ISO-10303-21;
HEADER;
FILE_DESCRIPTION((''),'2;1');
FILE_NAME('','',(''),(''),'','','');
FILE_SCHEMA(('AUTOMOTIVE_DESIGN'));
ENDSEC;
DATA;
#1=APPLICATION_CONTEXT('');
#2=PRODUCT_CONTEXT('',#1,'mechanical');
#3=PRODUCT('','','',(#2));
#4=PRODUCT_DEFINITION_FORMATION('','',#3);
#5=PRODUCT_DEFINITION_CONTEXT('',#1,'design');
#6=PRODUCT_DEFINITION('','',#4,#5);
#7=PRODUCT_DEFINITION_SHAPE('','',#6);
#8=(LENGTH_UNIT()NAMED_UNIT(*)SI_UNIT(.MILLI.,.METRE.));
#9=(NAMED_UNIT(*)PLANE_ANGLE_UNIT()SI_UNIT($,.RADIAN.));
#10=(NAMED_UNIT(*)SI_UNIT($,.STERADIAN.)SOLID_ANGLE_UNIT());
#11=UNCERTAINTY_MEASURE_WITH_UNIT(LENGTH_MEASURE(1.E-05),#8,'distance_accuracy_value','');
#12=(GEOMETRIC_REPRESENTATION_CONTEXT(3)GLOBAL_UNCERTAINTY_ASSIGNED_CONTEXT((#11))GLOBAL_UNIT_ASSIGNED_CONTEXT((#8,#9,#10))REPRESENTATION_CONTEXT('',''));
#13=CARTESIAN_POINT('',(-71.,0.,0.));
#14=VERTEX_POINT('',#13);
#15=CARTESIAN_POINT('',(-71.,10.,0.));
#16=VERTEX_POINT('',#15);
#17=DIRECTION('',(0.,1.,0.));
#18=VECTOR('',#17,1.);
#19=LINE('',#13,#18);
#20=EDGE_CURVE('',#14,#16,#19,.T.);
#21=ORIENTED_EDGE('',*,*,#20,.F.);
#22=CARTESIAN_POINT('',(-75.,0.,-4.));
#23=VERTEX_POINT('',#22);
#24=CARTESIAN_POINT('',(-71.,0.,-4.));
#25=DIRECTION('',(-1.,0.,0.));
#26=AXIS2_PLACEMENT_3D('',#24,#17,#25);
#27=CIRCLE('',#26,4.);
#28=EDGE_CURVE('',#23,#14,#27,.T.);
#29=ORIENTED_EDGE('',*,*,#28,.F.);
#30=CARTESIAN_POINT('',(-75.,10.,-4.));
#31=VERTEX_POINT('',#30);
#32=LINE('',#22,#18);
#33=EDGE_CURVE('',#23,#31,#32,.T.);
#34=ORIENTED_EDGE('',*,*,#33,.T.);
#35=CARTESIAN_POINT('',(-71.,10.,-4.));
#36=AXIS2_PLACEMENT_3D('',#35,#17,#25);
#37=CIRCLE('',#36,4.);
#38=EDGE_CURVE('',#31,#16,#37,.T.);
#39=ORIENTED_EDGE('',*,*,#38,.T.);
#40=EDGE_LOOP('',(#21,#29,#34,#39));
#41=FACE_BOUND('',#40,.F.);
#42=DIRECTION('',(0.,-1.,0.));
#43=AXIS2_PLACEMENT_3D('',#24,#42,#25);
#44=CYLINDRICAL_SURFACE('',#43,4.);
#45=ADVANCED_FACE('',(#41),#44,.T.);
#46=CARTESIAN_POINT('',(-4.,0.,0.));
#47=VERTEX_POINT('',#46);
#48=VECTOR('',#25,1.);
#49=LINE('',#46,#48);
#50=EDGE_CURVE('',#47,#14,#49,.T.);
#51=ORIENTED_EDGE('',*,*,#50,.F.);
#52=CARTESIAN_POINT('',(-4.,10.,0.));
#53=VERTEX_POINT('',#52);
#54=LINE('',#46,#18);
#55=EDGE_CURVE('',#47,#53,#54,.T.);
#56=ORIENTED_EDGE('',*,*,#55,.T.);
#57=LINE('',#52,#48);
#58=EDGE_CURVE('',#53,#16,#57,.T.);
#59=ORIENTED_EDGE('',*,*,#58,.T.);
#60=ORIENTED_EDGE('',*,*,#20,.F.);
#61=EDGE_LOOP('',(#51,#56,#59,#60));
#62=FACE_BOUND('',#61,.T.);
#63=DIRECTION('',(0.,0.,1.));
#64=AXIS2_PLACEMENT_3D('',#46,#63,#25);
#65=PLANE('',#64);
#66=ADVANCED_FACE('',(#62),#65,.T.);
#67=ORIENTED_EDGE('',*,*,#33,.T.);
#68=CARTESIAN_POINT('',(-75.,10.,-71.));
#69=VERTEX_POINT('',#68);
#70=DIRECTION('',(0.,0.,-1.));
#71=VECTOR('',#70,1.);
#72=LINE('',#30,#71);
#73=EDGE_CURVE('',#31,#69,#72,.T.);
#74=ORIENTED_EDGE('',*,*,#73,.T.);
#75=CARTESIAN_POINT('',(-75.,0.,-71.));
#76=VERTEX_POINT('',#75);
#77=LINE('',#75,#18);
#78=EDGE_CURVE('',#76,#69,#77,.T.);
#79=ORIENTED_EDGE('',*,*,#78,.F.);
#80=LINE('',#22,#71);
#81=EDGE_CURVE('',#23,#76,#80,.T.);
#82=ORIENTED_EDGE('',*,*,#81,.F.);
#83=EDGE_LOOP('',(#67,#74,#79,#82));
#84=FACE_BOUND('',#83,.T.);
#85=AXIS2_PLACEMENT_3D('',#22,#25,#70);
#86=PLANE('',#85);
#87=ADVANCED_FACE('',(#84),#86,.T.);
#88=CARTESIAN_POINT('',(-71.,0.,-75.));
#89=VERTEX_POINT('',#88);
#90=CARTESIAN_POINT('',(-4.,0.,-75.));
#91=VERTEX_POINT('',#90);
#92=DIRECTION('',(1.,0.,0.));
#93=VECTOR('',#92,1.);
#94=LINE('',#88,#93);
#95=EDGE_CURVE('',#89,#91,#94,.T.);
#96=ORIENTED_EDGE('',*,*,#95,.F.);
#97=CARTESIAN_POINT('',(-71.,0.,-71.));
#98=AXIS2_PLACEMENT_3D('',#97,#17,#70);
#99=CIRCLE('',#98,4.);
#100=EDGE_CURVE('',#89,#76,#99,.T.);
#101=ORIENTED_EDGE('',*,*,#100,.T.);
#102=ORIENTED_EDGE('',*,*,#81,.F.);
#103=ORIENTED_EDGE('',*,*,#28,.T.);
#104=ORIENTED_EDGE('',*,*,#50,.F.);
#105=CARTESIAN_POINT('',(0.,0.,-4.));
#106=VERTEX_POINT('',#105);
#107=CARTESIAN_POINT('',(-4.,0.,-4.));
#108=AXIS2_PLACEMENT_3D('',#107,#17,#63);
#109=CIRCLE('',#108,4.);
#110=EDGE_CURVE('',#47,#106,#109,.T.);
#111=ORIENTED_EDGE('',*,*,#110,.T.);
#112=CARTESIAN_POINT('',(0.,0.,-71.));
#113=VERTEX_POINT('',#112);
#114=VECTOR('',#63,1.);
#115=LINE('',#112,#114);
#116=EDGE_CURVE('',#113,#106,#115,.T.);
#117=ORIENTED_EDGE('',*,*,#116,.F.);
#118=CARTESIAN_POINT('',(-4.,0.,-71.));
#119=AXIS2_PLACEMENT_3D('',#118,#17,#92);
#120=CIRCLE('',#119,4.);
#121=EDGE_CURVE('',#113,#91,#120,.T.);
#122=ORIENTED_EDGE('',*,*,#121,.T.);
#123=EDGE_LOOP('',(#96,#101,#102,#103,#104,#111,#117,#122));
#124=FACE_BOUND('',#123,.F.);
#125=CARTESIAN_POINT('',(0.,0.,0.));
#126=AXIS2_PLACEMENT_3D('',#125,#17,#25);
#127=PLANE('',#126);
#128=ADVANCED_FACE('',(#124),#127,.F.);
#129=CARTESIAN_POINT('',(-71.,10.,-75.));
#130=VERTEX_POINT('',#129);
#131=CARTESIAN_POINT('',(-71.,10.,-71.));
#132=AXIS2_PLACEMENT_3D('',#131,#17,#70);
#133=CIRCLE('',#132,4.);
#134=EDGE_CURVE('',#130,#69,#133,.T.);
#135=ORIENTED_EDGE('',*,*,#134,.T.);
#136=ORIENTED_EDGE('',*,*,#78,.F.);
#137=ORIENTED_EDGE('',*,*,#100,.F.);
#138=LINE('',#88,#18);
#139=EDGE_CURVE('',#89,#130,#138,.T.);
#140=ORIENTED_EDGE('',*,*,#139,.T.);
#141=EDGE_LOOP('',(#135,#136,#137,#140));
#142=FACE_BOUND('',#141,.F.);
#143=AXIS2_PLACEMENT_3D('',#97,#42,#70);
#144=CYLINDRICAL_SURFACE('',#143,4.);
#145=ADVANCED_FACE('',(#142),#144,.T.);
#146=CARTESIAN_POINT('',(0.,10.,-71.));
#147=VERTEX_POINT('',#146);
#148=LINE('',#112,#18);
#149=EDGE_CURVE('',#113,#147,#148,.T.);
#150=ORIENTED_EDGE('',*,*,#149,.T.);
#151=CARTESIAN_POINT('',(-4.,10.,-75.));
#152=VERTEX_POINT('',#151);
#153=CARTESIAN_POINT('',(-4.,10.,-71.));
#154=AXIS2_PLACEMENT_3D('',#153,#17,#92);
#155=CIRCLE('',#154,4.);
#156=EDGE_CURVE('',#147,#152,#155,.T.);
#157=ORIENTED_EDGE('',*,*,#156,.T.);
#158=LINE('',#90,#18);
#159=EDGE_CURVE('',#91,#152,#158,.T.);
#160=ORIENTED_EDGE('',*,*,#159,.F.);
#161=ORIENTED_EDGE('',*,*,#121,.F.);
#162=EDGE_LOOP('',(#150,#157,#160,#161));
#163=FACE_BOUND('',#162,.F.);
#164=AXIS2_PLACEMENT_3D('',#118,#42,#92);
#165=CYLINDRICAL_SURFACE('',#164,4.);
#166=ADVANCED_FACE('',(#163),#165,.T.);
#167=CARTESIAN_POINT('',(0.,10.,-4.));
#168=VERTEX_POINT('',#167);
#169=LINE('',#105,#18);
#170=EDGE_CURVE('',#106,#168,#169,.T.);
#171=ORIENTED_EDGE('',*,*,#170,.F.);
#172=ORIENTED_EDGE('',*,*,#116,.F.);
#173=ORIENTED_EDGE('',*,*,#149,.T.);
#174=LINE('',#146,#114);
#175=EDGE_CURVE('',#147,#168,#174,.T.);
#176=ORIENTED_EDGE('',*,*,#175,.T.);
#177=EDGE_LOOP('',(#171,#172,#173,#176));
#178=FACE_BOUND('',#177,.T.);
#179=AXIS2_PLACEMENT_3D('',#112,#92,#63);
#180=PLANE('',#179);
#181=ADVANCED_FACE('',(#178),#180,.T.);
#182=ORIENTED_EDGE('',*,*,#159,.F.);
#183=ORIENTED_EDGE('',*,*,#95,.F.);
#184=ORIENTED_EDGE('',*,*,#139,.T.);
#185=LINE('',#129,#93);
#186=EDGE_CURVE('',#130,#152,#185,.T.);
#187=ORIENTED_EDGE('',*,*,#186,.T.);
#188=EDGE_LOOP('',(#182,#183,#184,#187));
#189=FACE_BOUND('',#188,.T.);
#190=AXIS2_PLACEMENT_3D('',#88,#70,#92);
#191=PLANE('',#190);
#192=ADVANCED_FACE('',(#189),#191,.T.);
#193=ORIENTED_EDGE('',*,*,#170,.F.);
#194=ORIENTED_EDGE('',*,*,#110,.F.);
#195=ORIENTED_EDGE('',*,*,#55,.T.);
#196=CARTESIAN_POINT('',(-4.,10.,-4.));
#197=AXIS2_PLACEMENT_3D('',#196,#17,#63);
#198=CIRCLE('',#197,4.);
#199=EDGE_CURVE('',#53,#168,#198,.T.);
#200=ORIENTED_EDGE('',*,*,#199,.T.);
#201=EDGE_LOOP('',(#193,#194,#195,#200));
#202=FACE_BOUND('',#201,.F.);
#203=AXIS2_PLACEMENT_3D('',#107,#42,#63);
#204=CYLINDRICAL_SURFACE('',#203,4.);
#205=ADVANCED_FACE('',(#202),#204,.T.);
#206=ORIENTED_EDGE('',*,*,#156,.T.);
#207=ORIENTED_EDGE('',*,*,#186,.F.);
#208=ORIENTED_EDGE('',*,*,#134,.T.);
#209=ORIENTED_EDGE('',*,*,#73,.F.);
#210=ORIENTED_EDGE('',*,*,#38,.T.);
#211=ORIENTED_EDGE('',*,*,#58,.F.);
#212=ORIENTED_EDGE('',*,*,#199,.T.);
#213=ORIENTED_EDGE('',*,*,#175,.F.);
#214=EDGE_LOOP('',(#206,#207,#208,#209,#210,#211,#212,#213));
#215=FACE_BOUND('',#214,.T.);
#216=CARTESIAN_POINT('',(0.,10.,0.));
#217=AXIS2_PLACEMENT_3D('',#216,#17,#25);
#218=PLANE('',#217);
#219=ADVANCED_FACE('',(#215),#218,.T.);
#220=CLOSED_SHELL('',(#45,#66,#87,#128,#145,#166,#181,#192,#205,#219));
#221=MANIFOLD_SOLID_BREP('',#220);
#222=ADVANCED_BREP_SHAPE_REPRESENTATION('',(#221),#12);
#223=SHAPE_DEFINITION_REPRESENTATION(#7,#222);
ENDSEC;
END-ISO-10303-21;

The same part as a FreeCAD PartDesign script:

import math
import FreeCAD as App
import Part
import Sketcher
from FreeCAD import Vector
Q = App.Units.Quantity

doc = App.newDocument("Part")
body = doc.addObject("PartDesign::Body", "Body")

sketch1 = body.newObject("Sketcher::SketchObject", "Sketch")
sketch1.AttachmentSupport = (doc.getObject("XZ_Plane"), [""])
sketch1.MapMode = "FlatFace"
sketch1.addGeometry(Part.LineSegment(Vector(-71, 0, 0), Vector(-4, 0, 0)), False)
sketch1.addGeometry(Part.ArcOfCircle(Part.Circle(Vector(-4, -4, 0), Vector(0, 0, 1), 4), math.radians(0), math.radians(90)), False)
sketch1.addGeometry(Part.LineSegment(Vector(0, -4, 0), Vector(0, -71, 0)), False)
sketch1.addGeometry(Part.ArcOfCircle(Part.Circle(Vector(-4, -71, 0), Vector(0, 0, 1), 4), math.radians(-90), math.radians(0)), False)
sketch1.addGeometry(Part.LineSegment(Vector(-4, -75, 0), Vector(-71, -75, 0)), False)
sketch1.addGeometry(Part.ArcOfCircle(Part.Circle(Vector(-71, -71, 0), Vector(0, 0, 1), 4), math.radians(180), math.radians(270)), False)
sketch1.addGeometry(Part.LineSegment(Vector(-75, -71, 0), Vector(-75, -4, 0)), False)
sketch1.addGeometry(Part.ArcOfCircle(Part.Circle(Vector(-71, -4, 0), Vector(0, 0, 1), 4), math.radians(90), math.radians(180)), False)
sketch1.addConstraint(Sketcher.Constraint("Tangent", 0, 2, 1, 2))
sketch1.addConstraint(Sketcher.Constraint("Tangent", 1, 1, 2, 1))
sketch1.addConstraint(Sketcher.Constraint("Tangent", 2, 2, 3, 2))
sketch1.addConstraint(Sketcher.Constraint("Tangent", 3, 1, 4, 1))
sketch1.addConstraint(Sketcher.Constraint("Tangent", 4, 2, 5, 2))
sketch1.addConstraint(Sketcher.Constraint("Tangent", 5, 1, 6, 1))
sketch1.addConstraint(Sketcher.Constraint("Tangent", 6, 2, 7, 2))
sketch1.addConstraint(Sketcher.Constraint("Tangent", 7, 1, 0, 1))
sketch1.addConstraint(Sketcher.Constraint("Horizontal", 0))
sketch1.addConstraint(Sketcher.Constraint("Vertical", 2))
sketch1.addConstraint(Sketcher.Constraint("Horizontal", 4))
sketch1.addConstraint(Sketcher.Constraint("Vertical", 6))
sketch1.addConstraint(Sketcher.Constraint("Equal", 1, 3))
sketch1.addConstraint(Sketcher.Constraint("Equal", 3, 5))
sketch1.addConstraint(Sketcher.Constraint("Equal", 5, 7))
sketch1.addConstraint(Sketcher.Constraint("PointOnObject", 0, 2, -1))
sketch1.addConstraint(Sketcher.Constraint("PointOnObject", 1, 1, -2))
sketch1.addConstraint(Sketcher.Constraint("Equal", 4, 2))
sketch1.addConstraint(Sketcher.Constraint("Radius", 1, Q("4 mm")))
sketch1.addConstraint(Sketcher.Constraint("DistanceY", 3, 1, -1, 1, Q("75 mm")))
pad1 = body.newObject("PartDesign::Pad", "Pad")
pad1.Profile = sketch1
pad1.Length = 10
pad1.Reversed = True

doc.recompute()
